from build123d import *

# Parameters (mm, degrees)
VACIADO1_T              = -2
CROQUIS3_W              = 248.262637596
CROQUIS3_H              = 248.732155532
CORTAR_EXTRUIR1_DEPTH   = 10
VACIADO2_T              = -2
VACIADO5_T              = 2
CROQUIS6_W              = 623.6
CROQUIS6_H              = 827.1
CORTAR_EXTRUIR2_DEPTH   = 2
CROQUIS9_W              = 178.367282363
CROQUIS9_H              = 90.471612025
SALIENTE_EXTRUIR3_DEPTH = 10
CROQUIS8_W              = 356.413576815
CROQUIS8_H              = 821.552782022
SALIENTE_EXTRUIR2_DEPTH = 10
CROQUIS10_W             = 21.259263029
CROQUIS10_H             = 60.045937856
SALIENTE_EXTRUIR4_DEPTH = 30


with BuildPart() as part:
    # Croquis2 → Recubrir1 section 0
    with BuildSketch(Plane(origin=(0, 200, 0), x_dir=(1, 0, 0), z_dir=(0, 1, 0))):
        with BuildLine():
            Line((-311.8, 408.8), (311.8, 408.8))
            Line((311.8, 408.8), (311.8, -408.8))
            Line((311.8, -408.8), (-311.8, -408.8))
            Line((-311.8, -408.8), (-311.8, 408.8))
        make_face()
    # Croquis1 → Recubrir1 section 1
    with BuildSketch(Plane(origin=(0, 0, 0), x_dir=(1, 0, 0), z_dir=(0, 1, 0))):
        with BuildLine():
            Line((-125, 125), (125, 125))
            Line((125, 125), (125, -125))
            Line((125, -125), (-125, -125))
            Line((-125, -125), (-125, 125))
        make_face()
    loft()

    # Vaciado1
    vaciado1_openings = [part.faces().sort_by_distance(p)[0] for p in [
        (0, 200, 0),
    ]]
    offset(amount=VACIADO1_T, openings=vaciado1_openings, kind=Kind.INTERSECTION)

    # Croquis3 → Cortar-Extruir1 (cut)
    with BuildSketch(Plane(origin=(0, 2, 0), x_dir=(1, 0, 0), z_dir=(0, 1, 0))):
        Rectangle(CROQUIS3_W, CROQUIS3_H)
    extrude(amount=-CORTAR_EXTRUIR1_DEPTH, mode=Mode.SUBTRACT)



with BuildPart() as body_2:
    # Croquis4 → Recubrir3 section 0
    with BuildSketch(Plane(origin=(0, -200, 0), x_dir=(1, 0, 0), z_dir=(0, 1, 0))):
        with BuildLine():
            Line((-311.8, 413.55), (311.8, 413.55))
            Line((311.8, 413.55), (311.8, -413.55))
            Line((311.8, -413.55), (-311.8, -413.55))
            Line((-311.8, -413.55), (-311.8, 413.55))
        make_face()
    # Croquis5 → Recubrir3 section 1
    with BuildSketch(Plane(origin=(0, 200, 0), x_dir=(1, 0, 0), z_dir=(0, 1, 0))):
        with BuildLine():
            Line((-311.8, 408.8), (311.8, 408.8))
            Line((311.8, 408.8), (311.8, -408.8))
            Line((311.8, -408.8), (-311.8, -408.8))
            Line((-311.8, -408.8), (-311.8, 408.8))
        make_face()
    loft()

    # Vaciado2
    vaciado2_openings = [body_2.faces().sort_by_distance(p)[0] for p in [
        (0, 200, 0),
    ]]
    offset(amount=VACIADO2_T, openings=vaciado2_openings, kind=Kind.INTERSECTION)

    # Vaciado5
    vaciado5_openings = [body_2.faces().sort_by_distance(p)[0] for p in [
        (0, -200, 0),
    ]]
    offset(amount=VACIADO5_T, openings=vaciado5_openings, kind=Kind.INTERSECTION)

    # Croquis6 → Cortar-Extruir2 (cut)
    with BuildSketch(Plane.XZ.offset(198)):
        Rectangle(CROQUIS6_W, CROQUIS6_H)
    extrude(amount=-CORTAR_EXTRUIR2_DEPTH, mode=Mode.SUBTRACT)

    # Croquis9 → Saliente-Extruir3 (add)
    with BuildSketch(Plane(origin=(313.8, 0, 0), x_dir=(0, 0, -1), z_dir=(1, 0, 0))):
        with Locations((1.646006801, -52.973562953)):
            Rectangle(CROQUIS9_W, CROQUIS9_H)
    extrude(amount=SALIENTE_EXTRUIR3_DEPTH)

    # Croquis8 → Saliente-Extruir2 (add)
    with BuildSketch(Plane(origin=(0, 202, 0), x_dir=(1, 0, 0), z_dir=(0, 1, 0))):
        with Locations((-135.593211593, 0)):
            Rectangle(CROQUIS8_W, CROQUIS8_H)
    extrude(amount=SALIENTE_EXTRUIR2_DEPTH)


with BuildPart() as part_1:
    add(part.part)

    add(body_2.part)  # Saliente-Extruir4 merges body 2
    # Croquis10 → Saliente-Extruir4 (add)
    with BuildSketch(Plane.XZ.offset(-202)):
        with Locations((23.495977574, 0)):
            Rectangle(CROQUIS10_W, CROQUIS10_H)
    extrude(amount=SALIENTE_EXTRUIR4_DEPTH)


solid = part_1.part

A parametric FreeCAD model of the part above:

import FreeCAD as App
import Part
import Sketcher

V = App.Vector


def faces_at(feature, points):
    """Names of the faces that lie closest to the given points."""
    faces = feature.Shape.Faces
    near = lambda p: min(range(len(faces)), key=lambda i: faces[i].distToShape(Part.Vertex(*p))[0])
    return sorted({f"Face{near(p) + 1}" for p in points})


def add_polygon(sketch, points):
    """Adds a closed chain of lines whose ends are joined by coincident constraints."""
    first, n = sketch.GeometryCount, len(points)
    for a, b in zip(points, points[1:] + points[:1]):
        sketch.addGeometry(Part.LineSegment(App.Vector(*a, 0), App.Vector(*b, 0)), False)
    for i in range(n):
        sketch.addConstraint(Sketcher.Constraint("Coincident", first + i, 2, first + (i + 1) % n, 1))

doc = App.newDocument("Part")
body = doc.addObject("PartDesign::Body", "Body")

sketch1 = doc.addObject("Sketcher::SketchObject", "Sketch")
body.addObject(sketch1)
sketch1.AttachmentSupport = (doc.XZ_Plane, [""])
sketch1.MapMode = "FlatFace"
sketch1.AttachmentOffset = App.Placement(V(0, 0, -200), App.Rotation())
add_polygon(sketch1, [(312, -409), (-312, -409), (-312, 409), (312, 409)])
sketch1.addConstraint([
    Sketcher.Constraint("Horizontal", 0),
    Sketcher.Constraint("Vertical", 1),
    Sketcher.Constraint("Horizontal", 2),
    Sketcher.Constraint("Vertical", 3),
    Sketcher.Constraint("Symmetric", 0, 2, 2, 2, -1, 1),
    Sketcher.Constraint("DistanceX", 0, 2, 0, 1, 623.6),
    Sketcher.Constraint("DistanceY", 1, 1, 1, 2, 817.6),
])

sketch2 = doc.addObject("Sketcher::SketchObject", "Sketch001")
body.addObject(sketch2)
sketch2.AttachmentSupport = (doc.XZ_Plane, [""])
sketch2.MapMode = "FlatFace"
add_polygon(sketch2, [(125, -125), (-125, -125), (-125, 125), (125, 125)])
sketch2.addConstraint([
    Sketcher.Constraint("Horizontal", 0),
    Sketcher.Constraint("Vertical", 1),
    Sketcher.Constraint("Horizontal", 2),
    Sketcher.Constraint("Vertical", 3),
    Sketcher.Constraint("Symmetric", 0, 2, 2, 2, -1, 1),
    Sketcher.Constraint("Equal", 2, 1),
    Sketcher.Constraint("DistanceX", 0, 2, 0, 1, 250.0),
])

additiveloft = doc.addObject("PartDesign::AdditiveLoft", "AdditiveLoft")
body.addObject(additiveloft)
additiveloft.Profile = sketch1
additiveloft.Sections = [sketch2]
doc.recompute()

thickness = doc.addObject("PartDesign::Thickness", "Thickness")
body.addObject(thickness)
thickness.Base = (additiveloft, faces_at(additiveloft, [(0, 200, 0)]))
thickness.Value = 2
thickness.Reversed = True
thickness.Join = "Intersection"

sketch3 = doc.addObject("Sketcher::SketchObject", "Sketch002")
body.addObject(sketch3)
sketch3.AttachmentSupport = (doc.XZ_Plane, [""])
sketch3.MapMode = "FlatFace"
sketch3.AttachmentOffset = App.Placement(V(0, 0, -2), App.Rotation())
add_polygon(sketch3, [(-124, -124), (-124, 124), (124, 124), (124, -124)])
sketch3.addConstraint([
    Sketcher.Constraint("Vertical", 0),
    Sketcher.Constraint("Horizontal", 1),
    Sketcher.Constraint("Vertical", 2),
    Sketcher.Constraint("Horizontal", 3),
    Sketcher.Constraint("Symmetric", 0, 2, 2, 2, -1, 1),
    Sketcher.Constraint("DistanceX", 1, 1, 1, 2, 248.262638),
    Sketcher.Constraint("DistanceY", 0, 1, 0, 2, 248.732156),
])
pocket1 = doc.addObject("PartDesign::Pocket", "Pocket")
body.addObject(pocket1)
pocket1.Profile = sketch3
pocket1.Length = 10
pocket1.Reversed = True
body2 = doc.addObject("PartDesign::Body", "Body001")

sketch4 = doc.addObject("Sketcher::SketchObject", "Sketch003")
body2.addObject(sketch4)
sketch4.AttachmentSupport = (doc.getObject("XZ_Plane001"), [""])
sketch4.MapMode = "FlatFace"
sketch4.AttachmentOffset = App.Placement(V(0, 0, 200), App.Rotation())
add_polygon(sketch4, [(312, -414), (-312, -414), (-312, 414), (312, 414)])
sketch4.addConstraint([
    Sketcher.Constraint("Horizontal", 0),
    Sketcher.Constraint("Vertical", 1),
    Sketcher.Constraint("Horizontal", 2),
    Sketcher.Constraint("Vertical", 3),
    Sketcher.Constraint("Symmetric", 0, 2, 2, 2, -1, 1),
    Sketcher.Constraint("DistanceX", 0, 2, 0, 1, 623.6),
    Sketcher.Constraint("DistanceY", 1, 1, 1, 2, 827.1),
])

sketch5 = doc.addObject("Sketcher::SketchObject", "Sketch004")
body2.addObject(sketch5)
sketch5.AttachmentSupport = (doc.getObject("XZ_Plane001"), [""])
sketch5.MapMode = "FlatFace"
sketch5.AttachmentOffset = App.Placement(V(0, 0, -200), App.Rotation())
add_polygon(sketch5, [(312, -409), (-312, -409), (-312, 409), (312, 409)])
sketch5.addConstraint([
    Sketcher.Constraint("Horizontal", 0),
    Sketcher.Constraint("Vertical", 1),
    Sketcher.Constraint("Horizontal", 2),
    Sketcher.Constraint("Vertical", 3),
    Sketcher.Constraint("Symmetric", 0, 2, 2, 2, -1, 1),
    Sketcher.Constraint("DistanceX", 0, 2, 0, 1, 623.6),
    Sketcher.Constraint("DistanceY", 1, 1, 1, 2, 817.6),
])

additiveloft2 = doc.addObject("PartDesign::AdditiveLoft", "AdditiveLoft001")
body2.addObject(additiveloft2)
additiveloft2.Profile = sketch4
additiveloft2.Sections = [sketch5]
doc.recompute()

thickness2 = doc.addObject("PartDesign::Thickness", "Thickness001")
body2.addObject(thickness2)
thickness2.Base = (additiveloft2, faces_at(additiveloft2, [(0, 200, 0)]))
thickness2.Value = 2
thickness2.Reversed = True
thickness2.Join = "Intersection"
doc.recompute()

thickness3 = doc.addObject("PartDesign::Thickness", "Thickness002")
body2.addObject(thickness3)
thickness3.Base = (thickness2, faces_at(thickness2, [(0, -200, 0)]))
thickness3.Value = 2
thickness3.Reversed = False
thickness3.Join = "Intersection"

sketch6 = doc.addObject("Sketcher::SketchObject", "Sketch005")
body2.addObject(sketch6)
sketch6.AttachmentSupport = (doc.getObject("XZ_Plane001"), [""])
sketch6.MapMode = "FlatFace"
sketch6.AttachmentOffset = App.Placement(V(0, 0, 198), App.Rotation())
add_polygon(sketch6, [(-312, 414), (-312, -414), (312, -414), (312, 414)])
sketch6.addConstraint([
    Sketcher.Constraint("Vertical", 0),
    Sketcher.Constraint("Horizontal", 1),
    Sketcher.Constraint("Vertical", 2),
    Sketcher.Constraint("Horizontal", 3),
    Sketcher.Constraint("Symmetric", 0, 2, 2, 2, -1, 1),
    Sketcher.Constraint("DistanceX", 1, 1, 1, 2, 623.6),
    Sketcher.Constraint("DistanceY", 0, 2, 0, 1, 827.1),
])
pocket2 = doc.addObject("PartDesign::Pocket", "Pocket001")
body2.addObject(pocket2)
pocket2.Profile = sketch6
pocket2.Length = 2

sketch7 = doc.addObject("Sketcher::SketchObject", "Sketch006")
body2.addObject(sketch7)
sketch7.AttachmentSupport = (doc.getObject("YZ_Plane001"), [""])
sketch7.MapMode = "FlatFace"
sketch7.AttachmentOffset = App.Placement(V(0, 0, 313.8), App.Rotation())
add_polygon(sketch7, [(-8, 88), (-98, 88), (-98, -91), (-8, -91)])
sketch7.addConstraint([
    Sketcher.Constraint("Horizontal", 0),
    Sketcher.Constraint("Vertical", 1),
    Sketcher.Constraint("Horizontal", 2),
    Sketcher.Constraint("Vertical", 3),
    Sketcher.Constraint("DistanceX", 0, 2, 0, 1, 90.471612),
    Sketcher.Constraint("DistanceY", 1, 2, 1, 1, 178.367282),
    Sketcher.Constraint("DistanceX", 0, 2, -1, 1, 98.209369),
    Sketcher.Constraint("DistanceY", -1, 1, 0, 2, 87.537634),
])
pad1 = doc.addObject("PartDesign::Pad", "Pad")
body2.addObject(pad1)
pad1.Profile = sketch7
pad1.Length = 10

sketch8 = doc.addObject("Sketcher::SketchObject", "Sketch007")
body2.addObject(sketch8)
sketch8.AttachmentSupport = (doc.getObject("XZ_Plane001"), [""])
sketch8.MapMode = "FlatFace"
sketch8.AttachmentOffset = App.Placement(V(0, 0, -202), App.Rotation())
add_polygon(sketch8, [(-314, -411), (-314, 411), (43, 411), (43, -411)])
sketch8.addConstraint([
    Sketcher.Constraint("Vertical", 0),
    Sketcher.Constraint("Horizontal", 1),
    Sketcher.Constraint("Vertical", 2),
    Sketcher.Constraint("Horizontal", 3),
    Sketcher.Constraint("DistanceX", 0, 2, -1, 1, 313.8),
    Sketcher.Constraint("DistanceX", 1, 1, 1, 2, 356.413577),
    Sketcher.Constraint("DistanceY", 0, 1, 0, 2, 821.552782),
    Sketcher.Constraint("DistanceY", -1, 1, 0, 2, 410.776391),
])
pad2 = doc.addObject("PartDesign::Pad", "Pad001")
body2.addObject(pad2)
pad2.Profile = sketch8
pad2.Length = 10
pad2.Reversed = True
doc.recompute()

boolean = doc.addObject("PartDesign::Boolean", "Boolean")
body.addObject(boolean)
boolean.Type = "Fuse"
boolean.addObjects([body2])

sketch9 = doc.addObject("Sketcher::SketchObject", "Sketch008")
body.addObject(sketch9)
sketch9.AttachmentSupport = (doc.XZ_Plane, [""])
sketch9.MapMode = "FlatFace"
sketch9.AttachmentOffset = App.Placement(V(0, 0, -202), App.Rotation())
add_polygon(sketch9, [(13, 30), (13, -30), (34, -30), (34, 30)])
sketch9.addConstraint([
    Sketcher.Constraint("Vertical", 0),
    Sketcher.Constraint("Horizontal", 1),
    Sketcher.Constraint("Vertical", 2),
    Sketcher.Constraint("Horizontal", 3),
    Sketcher.Constraint("DistanceX", 1, 1, 1, 2, 21.259263),
    Sketcher.Constraint("DistanceY", 0, 2, 0, 1, 60.045938),
    Sketcher.Constraint("DistanceY", 0, 2, -1, 1, 30.022969),
    Sketcher.Constraint("DistanceX", -1, 1, 1, 2, 34.125609),
])
pad3 = doc.addObject("PartDesign::Pad", "Pad002")
body.addObject(pad3)
pad3.Profile = sketch9
pad3.Length = 30

doc.recompute()
